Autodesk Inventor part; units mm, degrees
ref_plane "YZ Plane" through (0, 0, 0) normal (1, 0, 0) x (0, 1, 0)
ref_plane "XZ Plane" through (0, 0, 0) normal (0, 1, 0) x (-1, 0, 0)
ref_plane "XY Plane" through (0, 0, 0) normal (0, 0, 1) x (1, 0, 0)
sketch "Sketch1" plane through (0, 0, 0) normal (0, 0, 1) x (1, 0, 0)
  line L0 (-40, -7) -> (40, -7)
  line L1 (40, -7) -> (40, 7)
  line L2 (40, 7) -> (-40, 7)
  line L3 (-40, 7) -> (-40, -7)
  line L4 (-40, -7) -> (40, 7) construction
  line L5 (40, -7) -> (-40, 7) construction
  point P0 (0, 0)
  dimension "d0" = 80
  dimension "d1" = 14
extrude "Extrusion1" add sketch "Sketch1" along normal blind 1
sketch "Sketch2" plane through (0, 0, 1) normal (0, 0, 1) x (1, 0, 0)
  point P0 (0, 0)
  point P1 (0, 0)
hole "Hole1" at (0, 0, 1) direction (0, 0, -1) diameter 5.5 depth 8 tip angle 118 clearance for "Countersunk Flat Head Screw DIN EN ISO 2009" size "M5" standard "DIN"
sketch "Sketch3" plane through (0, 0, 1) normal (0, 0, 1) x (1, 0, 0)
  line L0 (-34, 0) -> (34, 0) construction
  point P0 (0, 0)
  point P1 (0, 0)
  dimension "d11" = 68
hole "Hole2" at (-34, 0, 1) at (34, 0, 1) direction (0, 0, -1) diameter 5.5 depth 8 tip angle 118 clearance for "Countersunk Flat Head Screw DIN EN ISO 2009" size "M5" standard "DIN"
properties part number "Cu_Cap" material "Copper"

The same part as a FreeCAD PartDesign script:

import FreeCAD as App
import Part
import Sketcher

V = App.Vector
Q = App.Units.Quantity

doc = App.newDocument("Part")
params = doc.addObject("Spreadsheet::Sheet", "Params")
for row, (alias, value) in enumerate([
    ("sketch1_width", "80 mm"),
    ("sketch1_height", "14 mm"),
    ("pad1_length", "1 mm"),
    ("sketch2_diameter", "5.5 mm"),
    ("hole_diameter", "5.5 mm"),
    ("hole_depth", "8 mm"),
    ("sketch3_diameter", "5.5 mm"),
    ("hole2_diameter", "5.5 mm"),
    ("hole2_depth", "8 mm"),
], start=1):
    params.set(f"A{row}", alias)
    params.set(f"B{row}", "=" + value)
    params.setAlias(f"B{row}", alias)

body = doc.addObject("PartDesign::Body", "Body")

# Sketch on XY plane
sketch1 = body.newObject("Sketcher::SketchObject", "Sketch")
sketch1.AttachmentSupport = (doc.getObject("XY_Plane"), [""])
sketch1.MapMode = "FlatFace"
sketch1.addGeometry([
    Part.LineSegment(V(-40, 7, 0), V(-40, -7, 0)),
    Part.LineSegment(V(-40, -7, 0), V(40, -7, 0)),
    Part.LineSegment(V(40, -7, 0), V(40, 7, 0)),
    Part.LineSegment(V(40, 7, 0), V(-40, 7, 0)),
], False)
sketch1.addConstraint([
    Sketcher.Constraint("Coincident", 0, 2, 1, 1),
    Sketcher.Constraint("Coincident", 1, 2, 2, 1),
    Sketcher.Constraint("Coincident", 2, 2, 3, 1),
    Sketcher.Constraint("Coincident", 3, 2, 0, 1),
    Sketcher.Constraint("Vertical", 0),
    Sketcher.Constraint("Horizontal", 1),
    Sketcher.Constraint("Vertical", 2),
    Sketcher.Constraint("Horizontal", 3),
    Sketcher.Constraint("Symmetric", 0, 2, 2, 2, -1, 1),
    Sketcher.Constraint("DistanceX", 1, 1, 1, 2, Q("80 mm")),
    Sketcher.Constraint("DistanceY", 0, 2, 0, 1, Q("14 mm")),
])
sketch1.setExpression("Constraints[9]", "Params.sketch1_width")
sketch1.setExpression("Constraints[10]", "Params.sketch1_height")
pad1 = body.newObject("PartDesign::Pad", "Pad")
pad1.Profile = sketch1
pad1.setExpression("Length", "Params.pad1_length")

# Sketch on XY plane
sketch2 = body.newObject("Sketcher::SketchObject", "Sketch001")
sketch2.AttachmentSupport = (doc.getObject("XY_Plane"), [""])
sketch2.MapMode = "FlatFace"
sketch2.AttachmentOffset = App.Placement(V(0, 0, 1), App.Rotation())
sketch2.addGeometry(Part.Circle(V(0, 0, 0), V(0, 0, 1), 2.75), False)
sketch2.addConstraint([
    Sketcher.Constraint("Coincident", 0, 3, -1, 1),
    Sketcher.Constraint("Diameter", 0, Q("5.5 mm")),
])
sketch2.setExpression("Constraints[1]", "Params.sketch2_diameter")
doc.recompute()
hole = body.newObject("PartDesign::Hole", "Hole")
hole.Profile = sketch2
hole.ThreadType = "None"
hole.setExpression("Diameter", "Params.hole_diameter")
hole.DepthType = "Dimension"
hole.setExpression("Depth", "Params.hole_depth")
hole.DrillPoint = "Angled"
hole.DrillPointAngle = 118

# Sketch on XY plane
sketch3 = body.newObject("Sketcher::SketchObject", "Sketch002")
sketch3.AttachmentSupport = (doc.getObject("XY_Plane"), [""])
sketch3.MapMode = "FlatFace"
sketch3.AttachmentOffset = App.Placement(V(0, 0, 1), App.Rotation())
sketch3.addGeometry([
    Part.Circle(V(-34, 0, 0), V(0, 0, 1), 2.75),
    Part.Circle(V(34, 0, 0), V(0, 0, 1), 2.75),
], False)
sketch3.addConstraint([
    Sketcher.Constraint("Equal", 0, 1),
    Sketcher.Constraint("Symmetric", 0, 3, 1, 3, -1, 1),
    Sketcher.Constraint("PointOnObject", 0, 3, -1),
    Sketcher.Constraint("Diameter", 0, Q("5.5 mm")),
    Sketcher.Constraint("DistanceX", 0, 3, -1, 1, Q("34 mm")),
])
sketch3.setExpression("Constraints[3]", "Params.sketch3_diameter")
doc.recompute()
hole2 = body.newObject("PartDesign::Hole", "Hole001")
hole2.Profile = sketch3
hole2.ThreadType = "None"
hole2.setExpression("Diameter", "Params.hole2_diameter")
hole2.DepthType = "Dimension"
hole2.setExpression("Depth", "Params.hole2_depth")
hole2.DrillPoint = "Angled"
hole2.DrillPointAngle = 118

doc.recompute()
